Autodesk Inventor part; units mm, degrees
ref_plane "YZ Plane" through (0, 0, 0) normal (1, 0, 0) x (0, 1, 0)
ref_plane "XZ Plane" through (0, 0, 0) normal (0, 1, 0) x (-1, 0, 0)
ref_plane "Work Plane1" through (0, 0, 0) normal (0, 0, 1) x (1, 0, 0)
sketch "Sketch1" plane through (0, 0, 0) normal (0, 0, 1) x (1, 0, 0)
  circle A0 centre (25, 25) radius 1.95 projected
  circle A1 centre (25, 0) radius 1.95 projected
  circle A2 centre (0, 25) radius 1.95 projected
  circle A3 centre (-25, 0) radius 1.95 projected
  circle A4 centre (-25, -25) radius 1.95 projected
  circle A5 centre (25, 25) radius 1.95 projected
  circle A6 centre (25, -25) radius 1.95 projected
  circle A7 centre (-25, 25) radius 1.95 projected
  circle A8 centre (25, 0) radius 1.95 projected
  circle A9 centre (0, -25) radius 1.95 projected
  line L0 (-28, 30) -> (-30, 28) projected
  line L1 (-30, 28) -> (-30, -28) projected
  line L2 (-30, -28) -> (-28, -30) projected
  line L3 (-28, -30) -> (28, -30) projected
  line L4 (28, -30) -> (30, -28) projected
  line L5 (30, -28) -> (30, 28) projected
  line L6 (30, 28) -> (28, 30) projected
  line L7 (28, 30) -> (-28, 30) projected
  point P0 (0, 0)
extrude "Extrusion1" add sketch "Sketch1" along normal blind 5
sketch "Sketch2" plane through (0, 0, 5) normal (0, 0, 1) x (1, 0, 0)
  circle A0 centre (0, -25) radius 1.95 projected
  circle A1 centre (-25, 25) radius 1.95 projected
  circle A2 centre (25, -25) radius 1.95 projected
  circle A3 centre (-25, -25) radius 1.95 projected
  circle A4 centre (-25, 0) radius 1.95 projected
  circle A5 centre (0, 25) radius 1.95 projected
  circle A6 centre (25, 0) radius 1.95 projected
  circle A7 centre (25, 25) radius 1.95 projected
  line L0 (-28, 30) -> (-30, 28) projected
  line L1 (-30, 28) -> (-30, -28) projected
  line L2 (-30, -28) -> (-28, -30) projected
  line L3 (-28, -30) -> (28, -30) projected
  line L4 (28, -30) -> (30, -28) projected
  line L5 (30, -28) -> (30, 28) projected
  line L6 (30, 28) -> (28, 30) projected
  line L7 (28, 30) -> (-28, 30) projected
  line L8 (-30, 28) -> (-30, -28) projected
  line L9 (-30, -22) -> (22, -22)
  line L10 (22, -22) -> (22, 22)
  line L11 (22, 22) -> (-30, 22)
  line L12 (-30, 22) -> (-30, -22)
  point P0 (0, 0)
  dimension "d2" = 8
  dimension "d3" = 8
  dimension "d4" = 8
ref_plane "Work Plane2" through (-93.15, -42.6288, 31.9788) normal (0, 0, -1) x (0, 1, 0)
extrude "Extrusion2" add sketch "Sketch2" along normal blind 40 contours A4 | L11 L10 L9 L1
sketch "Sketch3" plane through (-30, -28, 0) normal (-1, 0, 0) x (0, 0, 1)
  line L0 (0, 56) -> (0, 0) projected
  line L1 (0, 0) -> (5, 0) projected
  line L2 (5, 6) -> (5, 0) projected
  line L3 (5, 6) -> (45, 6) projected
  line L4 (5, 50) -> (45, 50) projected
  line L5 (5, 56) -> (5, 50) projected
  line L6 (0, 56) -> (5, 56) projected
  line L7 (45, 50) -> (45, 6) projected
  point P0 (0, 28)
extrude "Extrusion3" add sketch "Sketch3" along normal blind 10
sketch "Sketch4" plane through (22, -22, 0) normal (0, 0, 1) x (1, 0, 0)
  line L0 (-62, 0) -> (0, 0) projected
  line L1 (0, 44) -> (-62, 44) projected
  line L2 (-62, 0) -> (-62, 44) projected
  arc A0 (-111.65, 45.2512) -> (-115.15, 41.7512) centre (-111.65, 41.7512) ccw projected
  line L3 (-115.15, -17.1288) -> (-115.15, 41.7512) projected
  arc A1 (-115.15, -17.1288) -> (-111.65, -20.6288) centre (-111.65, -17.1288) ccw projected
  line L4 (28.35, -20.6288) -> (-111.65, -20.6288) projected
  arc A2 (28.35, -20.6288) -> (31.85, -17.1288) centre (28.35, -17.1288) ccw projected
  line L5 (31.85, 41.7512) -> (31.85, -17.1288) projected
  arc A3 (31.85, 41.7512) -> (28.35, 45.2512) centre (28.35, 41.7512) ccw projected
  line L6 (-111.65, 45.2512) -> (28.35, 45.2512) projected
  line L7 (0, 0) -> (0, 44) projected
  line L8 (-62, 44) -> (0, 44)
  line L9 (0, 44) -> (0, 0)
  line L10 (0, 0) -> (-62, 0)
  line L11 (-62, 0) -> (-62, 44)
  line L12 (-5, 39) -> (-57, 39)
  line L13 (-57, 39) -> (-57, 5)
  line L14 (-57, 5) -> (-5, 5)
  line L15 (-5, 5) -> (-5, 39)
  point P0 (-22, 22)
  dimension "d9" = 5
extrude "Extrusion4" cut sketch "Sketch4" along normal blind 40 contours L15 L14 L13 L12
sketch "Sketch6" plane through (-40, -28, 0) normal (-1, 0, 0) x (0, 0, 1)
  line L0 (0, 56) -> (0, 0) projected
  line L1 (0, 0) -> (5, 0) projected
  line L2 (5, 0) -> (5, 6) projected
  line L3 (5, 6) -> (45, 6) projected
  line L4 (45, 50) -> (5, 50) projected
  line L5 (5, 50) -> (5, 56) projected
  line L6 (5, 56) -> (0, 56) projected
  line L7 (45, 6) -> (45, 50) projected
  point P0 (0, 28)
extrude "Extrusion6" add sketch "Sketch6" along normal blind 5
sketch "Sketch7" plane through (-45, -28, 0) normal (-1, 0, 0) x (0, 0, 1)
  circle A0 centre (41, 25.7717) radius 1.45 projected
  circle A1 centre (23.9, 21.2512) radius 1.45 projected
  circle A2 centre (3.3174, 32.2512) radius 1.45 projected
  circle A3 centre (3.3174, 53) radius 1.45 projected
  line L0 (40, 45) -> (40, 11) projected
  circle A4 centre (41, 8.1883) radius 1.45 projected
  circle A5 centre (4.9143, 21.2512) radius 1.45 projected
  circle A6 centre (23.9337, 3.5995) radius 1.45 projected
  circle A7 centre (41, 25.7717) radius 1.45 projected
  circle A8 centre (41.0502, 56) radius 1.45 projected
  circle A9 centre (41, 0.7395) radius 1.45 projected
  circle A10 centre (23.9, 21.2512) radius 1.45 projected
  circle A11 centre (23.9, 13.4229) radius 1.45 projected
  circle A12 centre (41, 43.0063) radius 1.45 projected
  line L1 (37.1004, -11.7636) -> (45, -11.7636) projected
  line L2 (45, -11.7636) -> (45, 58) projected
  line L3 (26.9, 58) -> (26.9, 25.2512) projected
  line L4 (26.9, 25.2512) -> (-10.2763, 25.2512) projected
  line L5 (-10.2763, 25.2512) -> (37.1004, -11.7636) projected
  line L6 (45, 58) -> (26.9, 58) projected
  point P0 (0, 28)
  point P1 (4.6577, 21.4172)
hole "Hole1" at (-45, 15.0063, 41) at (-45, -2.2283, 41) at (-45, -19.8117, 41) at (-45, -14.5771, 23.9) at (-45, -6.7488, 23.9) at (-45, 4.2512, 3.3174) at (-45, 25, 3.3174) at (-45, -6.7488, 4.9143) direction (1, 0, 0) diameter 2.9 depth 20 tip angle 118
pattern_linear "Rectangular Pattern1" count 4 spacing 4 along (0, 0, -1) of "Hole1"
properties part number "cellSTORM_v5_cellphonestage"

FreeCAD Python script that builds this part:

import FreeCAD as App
import Part
import Sketcher


def add_polygon(sketch, points):
    """Adds a closed chain of lines whose ends are joined by coincident constraints."""
    first, n = sketch.GeometryCount, len(points)
    for a, b in zip(points, points[1:] + points[:1]):
        sketch.addGeometry(Part.LineSegment(App.Vector(*a, 0), App.Vector(*b, 0)), False)
    for i in range(n):
        sketch.addConstraint(Sketcher.Constraint("Coincident", first + i, 2, first + (i + 1) % n, 1))

doc = App.newDocument("Part")
body = doc.addObject("PartDesign::Body", "Body")

# Sketch on XY plane
sketch1 = body.newObject("Sketcher::SketchObject", "Sketch")
sketch1.AttachmentSupport = (doc.getObject("XY_Plane"), [""])
sketch1.MapMode = "FlatFace"
add_polygon(sketch1, [(28, 30), (-28, 30), (-30, 28), (-30, -28), (-28, -30), (28, -30), (30, -28), (30, 28)])  # lines 0-7
sketch1.addGeometry(Part.Circle(App.Vector(-25, -25, 0), App.Vector(0, 0, 1), 1.9), False)  # 8
sketch1.addGeometry(Part.Circle(App.Vector(0, -25, 0), App.Vector(0, 0, 1), 1.9), False)  # 9
sketch1.addGeometry(Part.Circle(App.Vector(25, -25, 0), App.Vector(0, 0, 1), 1.9), False)  # 10
sketch1.addGeometry(Part.Circle(App.Vector(-25, 0, 0), App.Vector(0, 0, 1), 1.9), False)  # 11
sketch1.addGeometry(Part.Circle(App.Vector(-25, 25, 0), App.Vector(0, 0, 1), 1.9), False)  # 12
sketch1.addGeometry(Part.Circle(App.Vector(25, 0, 0), App.Vector(0, 0, 1), 1.9), False)  # 13
sketch1.addGeometry(Part.Circle(App.Vector(0, 25, 0), App.Vector(0, 0, 1), 1.9), False)  # 14
sketch1.addGeometry(Part.Circle(App.Vector(25, 25, 0), App.Vector(0, 0, 1), 1.9), False)  # 15
sketch1.addConstraint(Sketcher.Constraint("Horizontal", 0))
sketch1.addConstraint(Sketcher.Constraint("Vertical", 2))
sketch1.addConstraint(Sketcher.Constraint("Horizontal", 4))
sketch1.addConstraint(Sketcher.Constraint("Vertical", 6))
sketch1.addConstraint(Sketcher.Constraint("Equal", 8, 9))
sketch1.addConstraint(Sketcher.Constraint("Equal", 9, 10))
sketch1.addConstraint(Sketcher.Constraint("Equal", 10, 11))
sketch1.addConstraint(Sketcher.Constraint("Equal", 11, 12))
sketch1.addConstraint(Sketcher.Constraint("Equal", 12, 13))
sketch1.addConstraint(Sketcher.Constraint("Equal", 13, 14))
sketch1.addConstraint(Sketcher.Constraint("Equal", 14, 15))
sketch1.addConstraint(Sketcher.Constraint("Symmetric", 10, 3, 12, 3, -1, 1))
sketch1.addConstraint(Sketcher.Constraint("Symmetric", 11, 3, 13, 3, -1, 1))
sketch1.addConstraint(Sketcher.Constraint("Symmetric", 9, 3, 14, 3, -1, 1))
sketch1.addConstraint(Sketcher.Constraint("Symmetric", 8, 3, 15, 3, -1, 1))
sketch1.addConstraint(Sketcher.Constraint("Symmetric", 0, 2, 4, 2, -1, 1))
sketch1.addConstraint(Sketcher.Constraint("Symmetric", 1, 2, 5, 2, -1, 1))
sketch1.addConstraint(Sketcher.Constraint("Symmetric", 8, 3, 10, 3, -2))
sketch1.addConstraint(Sketcher.Constraint("PointOnObject", 9, 3, -2))
sketch1.addConstraint(Sketcher.Constraint("PointOnObject", 11, 3, -1))
sketch1.addConstraint(Sketcher.Constraint("Perpendicular", 1, 3))
sketch1.addConstraint(Sketcher.Constraint("Perpendicular", 5, 7))
sketch1.addConstraint(Sketcher.Constraint("Horizontal", 8, 3, 9, 3))
sketch1.addConstraint(Sketcher.Constraint("Horizontal", 2, 2, 5, 2))
sketch1.addConstraint(Sketcher.Constraint("Horizontal", 1, 2, 6, 2))
sketch1.addConstraint(Sketcher.Constraint("Vertical", 8, 3, 11, 3))
sketch1.addConstraint(Sketcher.Constraint("Vertical", 0, 2, 3, 2))
sketch1.addConstraint(Sketcher.Constraint("Equal", 4, 2))
sketch1.addConstraint(Sketcher.Constraint("Diameter", 8, 3.9))
sketch1.addConstraint(Sketcher.Constraint("DistanceX", 0, 2, 0, 1, 56.0))
sketch1.addConstraint(Sketcher.Constraint("DistanceX", 8, 3, -1, 1, 25.0))
sketch1.addConstraint(Sketcher.Constraint("DistanceY", 8, 3, -1, 1, 25.0))
sketch1.addConstraint(Sketcher.Constraint("DistanceY", -1, 1, 0, 2, 30.0))
pad1 = body.newObject("PartDesign::Pad", "Pad")
pad1.Profile = sketch1
pad1.Length = 5

# Sketch on XY plane
sketch2 = body.newObject("Sketcher::SketchObject", "Sketch001")
sketch2.AttachmentSupport = (doc.getObject("XY_Plane"), [""])
sketch2.MapMode = "FlatFace"
sketch2.AttachmentOffset = App.Placement(App.Vector(0, 0, 5), App.Rotation())
add_polygon(sketch2, [(22, 22), (-30, 22), (-30, -22), (22, -22)])  # lines 0-3
sketch2.addConstraint(Sketcher.Constraint("Horizontal", 0))
sketch2.addConstraint(Sketcher.Constraint("Vertical", 1))
sketch2.addConstraint(Sketcher.Constraint("Horizontal", 2))
sketch2.addConstraint(Sketcher.Constraint("Vertical", 3))
sketch2.addConstraint(Sketcher.Constraint("DistanceX", 0, 2, 0, 1, 52.0))
sketch2.addConstraint(Sketcher.Constraint("DistanceY", 1, 2, 1, 1, 44.0))
sketch2.addConstraint(Sketcher.Constraint("DistanceX", 0, 2, -1, 1, 30.0))
sketch2.addConstraint(Sketcher.Constraint("DistanceY", -1, 1, 0, 2, 22.0))
pad2 = body.newObject("PartDesign::Pad", "Pad001")
pad2.Profile = sketch2
pad2.Length = 40

# Sketch on YZ plane
sketch3 = body.newObject("Sketcher::SketchObject", "Sketch002")
sketch3.AttachmentSupport = (doc.getObject("YZ_Plane"), [""])
sketch3.MapMode = "FlatFace"
sketch3.AttachmentOffset = App.Placement(App.Vector(0, 0, -30), App.Rotation())
add_polygon(sketch3, [(28, 5), (28, 0), (-28, 0), (-28, 5), (-22, 5), (-22, 45), (22, 45), (22, 5)])  # lines 0-7
sketch3.addConstraint(Sketcher.Constraint("Vertical", 0))
sketch3.addConstraint(Sketcher.Constraint("Horizontal", 1))
sketch3.addConstraint(Sketcher.Constraint("Vertical", 2))
sketch3.addConstraint(Sketcher.Constraint("Horizontal", 3))
sketch3.addConstraint(Sketcher.Constraint("Vertical", 4))
sketch3.addConstraint(Sketcher.Constraint("Horizontal", 5))
sketch3.addConstraint(Sketcher.Constraint("Vertical", 6))
sketch3.addConstraint(Sketcher.Constraint("Horizontal", 7))
sketch3.addConstraint(Sketcher.Constraint("Symmetric", 0, 2, 1, 2, -1, 1))
sketch3.addConstraint(Sketcher.Constraint("Symmetric", 3, 2, 6, 2, -2))
sketch3.addConstraint(Sketcher.Constraint("DistanceX", 1, 2, 1, 1, 56.0))
sketch3.addConstraint(Sketcher.Constraint("DistanceX", 3, 1, 3, 2, 6.0))
sketch3.addConstraint(Sketcher.Constraint("DistanceY", 0, 2, 0, 1, 5.0))
sketch3.addConstraint(Sketcher.Constraint("DistanceY", 4, 1, 4, 2, 40.0))
pad3 = body.newObject("PartDesign::Pad", "Pad002")
pad3.Profile = sketch3
pad3.Length = 10
pad3.Reversed = True

# Sketch on XY plane
sketch4 = body.newObject("Sketcher::SketchObject", "Sketch003")
sketch4.AttachmentSupport = (doc.getObject("XY_Plane"), [""])
sketch4.MapMode = "FlatFace"
add_polygon(sketch4, [(17, -17), (17, 17), (-35, 17), (-35, -17)])  # lines 0-3
sketch4.addConstraint(Sketcher.Constraint("Vertical", 0))
sketch4.addConstraint(Sketcher.Constraint("Horizontal", 1))
sketch4.addConstraint(Sketcher.Constraint("Vertical", 2))
sketch4.addConstraint(Sketcher.Constraint("Horizontal", 3))
sketch4.addConstraint(Sketcher.Constraint("DistanceX", 1, 2, 1, 1, 52.0))
sketch4.addConstraint(Sketcher.Constraint("DistanceY", 0, 1, 0, 2, 34.0))
sketch4.addConstraint(Sketcher.Constraint("DistanceX", -1, 1, 0, 2, 17.0))
sketch4.addConstraint(Sketcher.Constraint("DistanceY", -1, 1, 0, 2, 17.0))
pocket1 = body.newObject("PartDesign::Pocket", "Pocket")
pocket1.Profile = sketch4
pocket1.Length = 40
pocket1.Reversed = True

# Sketch on YZ plane
sketch5 = body.newObject("Sketcher::SketchObject", "Sketch004")
sketch5.AttachmentSupport = (doc.getObject("YZ_Plane"), [""])
sketch5.MapMode = "FlatFace"
sketch5.AttachmentOffset = App.Placement(App.Vector(0, 0, -40), App.Rotation())
add_polygon(sketch5, [(28, 5), (28, 0), (-28, 0), (-28, 5), (-22, 5), (-22, 45), (22, 45), (22, 5)])  # lines 0-7
sketch5.addConstraint(Sketcher.Constraint("Vertical", 0))
sketch5.addConstraint(Sketcher.Constraint("Horizontal", 1))
sketch5.addConstraint(Sketcher.Constraint("Vertical", 2))
sketch5.addConstraint(Sketcher.Constraint("Horizontal", 3))
sketch5.addConstraint(Sketcher.Constraint("Vertical", 4))
sketch5.addConstraint(Sketcher.Constraint("Horizontal", 5))
sketch5.addConstraint(Sketcher.Constraint("Vertical", 6))
sketch5.addConstraint(Sketcher.Constraint("Horizontal", 7))
sketch5.addConstraint(Sketcher.Constraint("Symmetric", 0, 2, 1, 2, -1, 1))
sketch5.addConstraint(Sketcher.Constraint("Symmetric", 3, 2, 6, 2, -2))
sketch5.addConstraint(Sketcher.Constraint("DistanceX", 1, 2, 1, 1, 56.0))
sketch5.addConstraint(Sketcher.Constraint("DistanceX", 3, 1, 3, 2, 6.0))
sketch5.addConstraint(Sketcher.Constraint("DistanceY", 0, 2, 0, 1, 5.0))
sketch5.addConstraint(Sketcher.Constraint("DistanceY", 4, 1, 4, 2, 40.0))
pad4 = body.newObject("PartDesign::Pad", "Pad003")
pad4.Profile = sketch5
pad4.Length = 5
pad4.Reversed = True

# Sketch on YZ plane
sketch6 = body.newObject("Sketcher::SketchObject", "Sketch005")
sketch6.AttachmentSupport = (doc.getObject("YZ_Plane"), [""])
sketch6.MapMode = "FlatFace"
sketch6.AttachmentOffset = App.Placement(App.Vector(0, 0, -45), App.Rotation())
sketch6.addGeometry(Part.Circle(App.Vector(15, 41, 0), App.Vector(0, 0, 1), 1.4), False)
sketch6.addGeometry(Part.Circle(App.Vector(-2.2, 41, 0), App.Vector(0, 0, 1), 1.4), False)
sketch6.addGeometry(Part.Circle(App.Vector(-19.8, 41, 0), App.Vector(0, 0, 1), 1.4), False)
sketch6.addGeometry(Part.Circle(App.Vector(-14.6, 23.9, 0), App.Vector(0, 0, 1), 1.4), False)
sketch6.addGeometry(Part.Circle(App.Vector(-6.7, 23.9, 0), App.Vector(0, 0, 1), 1.4), False)
sketch6.addGeometry(Part.Circle(App.Vector(4.3, 3.3, 0), App.Vector(0, 0, 1), 1.4), False)
sketch6.addGeometry(Part.Circle(App.Vector(25, 3.3, 0), App.Vector(0, 0, 1), 1.4), False)
sketch6.addGeometry(Part.Circle(App.Vector(-6.7, 4.9, 0), App.Vector(0, 0, 1), 1.4), False)
sketch6.addConstraint(Sketcher.Constraint("Equal", 0, 1))
sketch6.addConstraint(Sketcher.Constraint("Equal", 1, 2))
sketch6.addConstraint(Sketcher.Constraint("Equal", 2, 3))
sketch6.addConstraint(Sketcher.Constraint("Equal", 3, 4))
sketch6.addConstraint(Sketcher.Constraint("Equal", 4, 5))
sketch6.addConstraint(Sketcher.Constraint("Equal", 5, 6))
sketch6.addConstraint(Sketcher.Constraint("Equal", 6, 7))
sketch6.addConstraint(Sketcher.Constraint("Horizontal", 0, 3, 1, 3))
sketch6.addConstraint(Sketcher.Constraint("Horizontal", 1, 3, 2, 3))
sketch6.addConstraint(Sketcher.Constraint("Horizontal", 3, 3, 4, 3))
sketch6.addConstraint(Sketcher.Constraint("Horizontal", 5, 3, 6, 3))
sketch6.addConstraint(Sketcher.Constraint("Vertical", 4, 3, 7, 3))
sketch6.addConstraint(Sketcher.Constraint("Diameter", 0, 2.9))
sketch6.addConstraint(Sketcher.Constraint("DistanceY", -1, 1, 0, 3, 41.0))
sketch6.addConstraint(Sketcher.Constraint("DistanceX", -1, 1, 6, 3, 25.0))
sketch6.addConstraint(Sketcher.Constraint("DistanceX", 4, 3, 5, 3, 11.0))
sketch6.addConstraint(Sketcher.Constraint("DistanceY", -1, 1, 3, 3, 23.9))
sketch6.addConstraint(Sketcher.Constraint("DistanceX", 3, 3, -1, 1, 14.577))
sketch6.addConstraint(Sketcher.Constraint("DistanceX", 2, 3, 0, 3, 34.818))
sketch6.addConstraint(Sketcher.Constraint("DistanceX", 2, 3, 4, 3, 13.063))
sketch6.addConstraint(Sketcher.Constraint("DistanceY", 5, 3, 7, 3, 1.597))
sketch6.addConstraint(Sketcher.Constraint("DistanceX", -1, 1, 0, 3, 15.0063))
sketch6.addConstraint(Sketcher.Constraint("DistanceX", 1, 3, -1, 1, 2.2283))
sketch6.addConstraint(Sketcher.Constraint("DistanceY", -1, 1, 5, 3, 3.3174))
doc.recompute()
hole = body.newObject("PartDesign::Hole", "Hole")
hole.Profile = sketch6
hole.ThreadType = "None"
hole.Diameter = 2.9
hole.DepthType = "Dimension"
hole.Depth = 20
hole.DrillPoint = "Angled"
hole.DrillPointAngle = 118
hole.Reversed = True
doc.recompute()

linearpattern = body.newObject("PartDesign::LinearPattern", "LinearPattern")
linearpattern.Originals = [hole]
linearpattern.Direction = (doc.getObject("Z_Axis"), [""])
linearpattern.Mode = "offset"
linearpattern.Offset = 4
linearpattern.Occurrences = 4
linearpattern.Reversed = True
body.Tip = linearpattern

doc.recompute()
